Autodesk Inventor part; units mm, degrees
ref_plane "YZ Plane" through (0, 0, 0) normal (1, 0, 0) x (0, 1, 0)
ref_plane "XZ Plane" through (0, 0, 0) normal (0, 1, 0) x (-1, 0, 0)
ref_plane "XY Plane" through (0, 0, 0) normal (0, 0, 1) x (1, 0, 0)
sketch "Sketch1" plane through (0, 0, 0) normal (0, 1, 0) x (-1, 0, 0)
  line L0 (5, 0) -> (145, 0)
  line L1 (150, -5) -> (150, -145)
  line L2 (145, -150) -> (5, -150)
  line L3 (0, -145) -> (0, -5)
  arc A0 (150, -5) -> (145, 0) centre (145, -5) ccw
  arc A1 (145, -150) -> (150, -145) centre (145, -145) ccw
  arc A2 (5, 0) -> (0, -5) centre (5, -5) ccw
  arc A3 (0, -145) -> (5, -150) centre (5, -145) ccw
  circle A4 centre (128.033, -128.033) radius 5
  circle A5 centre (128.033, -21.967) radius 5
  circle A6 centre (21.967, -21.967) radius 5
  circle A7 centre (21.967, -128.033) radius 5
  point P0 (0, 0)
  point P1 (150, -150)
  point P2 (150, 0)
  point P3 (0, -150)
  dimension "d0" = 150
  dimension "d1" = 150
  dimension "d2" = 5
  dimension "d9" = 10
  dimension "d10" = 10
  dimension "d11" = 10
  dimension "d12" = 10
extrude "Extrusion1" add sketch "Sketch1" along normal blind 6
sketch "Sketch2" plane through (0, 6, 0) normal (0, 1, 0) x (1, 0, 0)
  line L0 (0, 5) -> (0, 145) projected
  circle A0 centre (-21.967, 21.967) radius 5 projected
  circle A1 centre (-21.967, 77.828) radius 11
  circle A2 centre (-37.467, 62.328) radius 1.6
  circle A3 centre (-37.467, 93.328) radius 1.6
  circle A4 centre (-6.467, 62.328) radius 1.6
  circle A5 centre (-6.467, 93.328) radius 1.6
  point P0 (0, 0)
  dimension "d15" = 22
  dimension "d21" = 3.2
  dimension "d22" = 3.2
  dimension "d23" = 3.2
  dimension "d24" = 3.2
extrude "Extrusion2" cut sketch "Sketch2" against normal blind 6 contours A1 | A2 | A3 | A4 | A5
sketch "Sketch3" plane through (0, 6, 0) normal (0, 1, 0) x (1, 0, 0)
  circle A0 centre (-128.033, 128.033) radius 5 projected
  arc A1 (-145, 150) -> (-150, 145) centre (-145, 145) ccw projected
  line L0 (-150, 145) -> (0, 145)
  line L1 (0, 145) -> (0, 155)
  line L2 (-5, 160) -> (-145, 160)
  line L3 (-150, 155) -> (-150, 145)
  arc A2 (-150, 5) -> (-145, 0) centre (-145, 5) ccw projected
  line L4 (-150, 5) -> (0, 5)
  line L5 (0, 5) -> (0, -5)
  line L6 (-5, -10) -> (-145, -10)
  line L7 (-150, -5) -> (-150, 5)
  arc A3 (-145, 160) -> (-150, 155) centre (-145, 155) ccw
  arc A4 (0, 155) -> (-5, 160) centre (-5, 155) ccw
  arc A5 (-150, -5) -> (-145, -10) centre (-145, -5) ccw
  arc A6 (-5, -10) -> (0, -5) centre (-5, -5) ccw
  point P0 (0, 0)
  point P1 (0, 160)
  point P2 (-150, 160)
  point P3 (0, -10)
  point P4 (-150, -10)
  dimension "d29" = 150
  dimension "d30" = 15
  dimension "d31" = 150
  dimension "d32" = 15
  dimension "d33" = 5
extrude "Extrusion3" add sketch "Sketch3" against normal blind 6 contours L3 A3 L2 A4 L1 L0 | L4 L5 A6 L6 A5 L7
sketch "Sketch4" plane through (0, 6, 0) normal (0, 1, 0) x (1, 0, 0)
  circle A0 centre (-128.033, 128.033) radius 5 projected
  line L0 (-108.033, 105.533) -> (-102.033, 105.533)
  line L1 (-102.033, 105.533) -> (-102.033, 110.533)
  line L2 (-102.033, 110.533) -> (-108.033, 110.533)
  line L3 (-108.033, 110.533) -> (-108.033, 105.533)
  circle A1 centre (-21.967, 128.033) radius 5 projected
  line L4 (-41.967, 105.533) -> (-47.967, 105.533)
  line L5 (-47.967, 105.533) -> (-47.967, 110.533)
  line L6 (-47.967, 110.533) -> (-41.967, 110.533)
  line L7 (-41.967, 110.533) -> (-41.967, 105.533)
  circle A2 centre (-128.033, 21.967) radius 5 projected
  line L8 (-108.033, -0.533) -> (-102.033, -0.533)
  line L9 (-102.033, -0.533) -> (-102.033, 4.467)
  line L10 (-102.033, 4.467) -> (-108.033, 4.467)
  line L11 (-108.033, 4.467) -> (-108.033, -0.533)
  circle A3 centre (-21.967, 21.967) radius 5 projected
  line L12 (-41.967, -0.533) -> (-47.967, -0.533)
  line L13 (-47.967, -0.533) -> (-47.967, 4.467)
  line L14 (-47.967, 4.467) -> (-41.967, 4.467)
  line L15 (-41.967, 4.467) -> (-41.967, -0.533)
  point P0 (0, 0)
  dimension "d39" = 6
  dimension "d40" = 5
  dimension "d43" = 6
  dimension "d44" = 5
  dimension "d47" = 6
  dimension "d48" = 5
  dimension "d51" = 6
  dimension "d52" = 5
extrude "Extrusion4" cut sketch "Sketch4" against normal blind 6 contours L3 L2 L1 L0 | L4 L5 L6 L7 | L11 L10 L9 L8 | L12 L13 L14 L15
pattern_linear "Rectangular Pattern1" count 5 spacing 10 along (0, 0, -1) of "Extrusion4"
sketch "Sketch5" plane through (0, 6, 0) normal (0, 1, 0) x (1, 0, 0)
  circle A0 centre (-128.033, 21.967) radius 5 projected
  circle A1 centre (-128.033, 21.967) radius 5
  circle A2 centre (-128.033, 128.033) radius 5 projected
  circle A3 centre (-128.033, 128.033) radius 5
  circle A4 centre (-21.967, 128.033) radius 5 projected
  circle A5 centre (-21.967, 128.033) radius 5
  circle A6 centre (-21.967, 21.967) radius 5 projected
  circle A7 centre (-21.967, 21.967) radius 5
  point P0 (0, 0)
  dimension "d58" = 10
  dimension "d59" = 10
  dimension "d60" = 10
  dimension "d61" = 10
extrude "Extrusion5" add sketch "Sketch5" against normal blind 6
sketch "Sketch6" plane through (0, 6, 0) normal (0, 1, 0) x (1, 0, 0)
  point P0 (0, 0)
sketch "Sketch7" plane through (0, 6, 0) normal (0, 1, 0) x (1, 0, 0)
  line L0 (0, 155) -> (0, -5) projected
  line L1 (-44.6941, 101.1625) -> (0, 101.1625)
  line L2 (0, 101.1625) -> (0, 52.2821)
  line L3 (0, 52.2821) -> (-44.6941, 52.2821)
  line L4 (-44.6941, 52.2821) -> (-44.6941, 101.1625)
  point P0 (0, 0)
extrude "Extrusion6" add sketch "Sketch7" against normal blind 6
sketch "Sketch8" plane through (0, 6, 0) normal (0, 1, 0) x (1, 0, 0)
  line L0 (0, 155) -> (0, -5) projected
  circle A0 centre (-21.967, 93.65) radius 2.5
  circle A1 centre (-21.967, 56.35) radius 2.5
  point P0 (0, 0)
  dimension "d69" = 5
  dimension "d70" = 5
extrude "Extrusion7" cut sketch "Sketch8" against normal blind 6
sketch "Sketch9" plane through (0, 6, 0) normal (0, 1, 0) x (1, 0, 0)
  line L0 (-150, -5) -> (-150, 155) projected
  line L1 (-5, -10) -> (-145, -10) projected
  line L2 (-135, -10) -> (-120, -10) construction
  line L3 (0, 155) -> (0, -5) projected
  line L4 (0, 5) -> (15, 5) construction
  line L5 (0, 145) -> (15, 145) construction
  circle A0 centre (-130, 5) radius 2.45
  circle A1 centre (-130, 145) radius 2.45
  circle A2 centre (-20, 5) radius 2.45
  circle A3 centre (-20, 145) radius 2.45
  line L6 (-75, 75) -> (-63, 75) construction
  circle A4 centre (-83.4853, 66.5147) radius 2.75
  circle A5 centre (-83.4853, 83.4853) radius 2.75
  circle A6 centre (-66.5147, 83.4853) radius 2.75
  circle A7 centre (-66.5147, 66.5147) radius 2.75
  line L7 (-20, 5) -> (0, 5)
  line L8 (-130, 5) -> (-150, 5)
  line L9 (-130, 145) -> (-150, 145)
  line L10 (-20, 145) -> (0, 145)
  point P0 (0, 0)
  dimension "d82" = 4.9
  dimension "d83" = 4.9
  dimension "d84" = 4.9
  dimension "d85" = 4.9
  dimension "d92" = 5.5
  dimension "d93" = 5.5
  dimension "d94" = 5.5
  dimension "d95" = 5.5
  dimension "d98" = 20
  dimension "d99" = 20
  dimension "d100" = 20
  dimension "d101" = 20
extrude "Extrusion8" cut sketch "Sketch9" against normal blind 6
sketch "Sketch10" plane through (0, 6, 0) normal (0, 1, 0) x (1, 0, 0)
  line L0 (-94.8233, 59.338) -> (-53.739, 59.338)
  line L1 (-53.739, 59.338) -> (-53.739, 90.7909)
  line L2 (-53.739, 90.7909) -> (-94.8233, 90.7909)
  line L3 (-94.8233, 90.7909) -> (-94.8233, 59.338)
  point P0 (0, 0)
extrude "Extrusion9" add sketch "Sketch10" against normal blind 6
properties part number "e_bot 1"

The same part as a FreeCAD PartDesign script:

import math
import FreeCAD as App
import Part
import Sketcher

V = App.Vector


def add_polygon(sketch, points):
    """Adds a closed chain of lines whose ends are joined by coincident constraints."""
    first, n = sketch.GeometryCount, len(points)
    for a, b in zip(points, points[1:] + points[:1]):
        sketch.addGeometry(Part.LineSegment(App.Vector(*a, 0), App.Vector(*b, 0)), False)
    for i in range(n):
        sketch.addConstraint(Sketcher.Constraint("Coincident", first + i, 2, first + (i + 1) % n, 1))

doc = App.newDocument("Part")
body = doc.addObject("PartDesign::Body", "Body")

# Sketch on XZ plane
sketch1 = body.newObject("Sketcher::SketchObject", "Sketch")
sketch1.AttachmentSupport = (doc.getObject("XZ_Plane"), [""])
sketch1.MapMode = "FlatFace"
sketch1.addGeometry([
    Part.LineSegment(V(-145, 0, 0), V(-5, 0, 0)),  # 0
    Part.ArcOfCircle(Part.Circle(V(-5, -5, 0), V(0, 0, 1), 5), math.radians(0), math.radians(90)),  # 1
    Part.LineSegment(V(0, -5, 0), V(0, -145, 0)),  # 2
    Part.ArcOfCircle(Part.Circle(V(-5, -145, 0), V(0, 0, 1), 5), math.radians(-90), math.radians(0)),  # 3
    Part.LineSegment(V(-5, -150, 0), V(-145, -150, 0)),  # 4
    Part.ArcOfCircle(Part.Circle(V(-145, -145, 0), V(0, 0, 1), 5), math.radians(180), math.radians(270)),  # 5
    Part.LineSegment(V(-150, -145, 0), V(-150, -5, 0)),  # 6
    Part.ArcOfCircle(Part.Circle(V(-145, -5, 0), V(0, 0, 1), 5), math.radians(90), math.radians(180)),  # 7
    Part.Circle(V(-22, -128, 0), V(0, 0, 1), 5),  # 8
    Part.Circle(V(-128, -128, 0), V(0, 0, 1), 5),  # 9
    Part.Circle(V(-22, -22, 0), V(0, 0, 1), 5),  # 10
    Part.Circle(V(-128, -22, 0), V(0, 0, 1), 5),  # 11
], False)
sketch1.addConstraint([
    Sketcher.Constraint("Tangent", 0, 2, 1, 2),
    Sketcher.Constraint("Tangent", 1, 1, 2, 1),
    Sketcher.Constraint("Tangent", 2, 2, 3, 2),
    Sketcher.Constraint("Tangent", 3, 1, 4, 1),
    Sketcher.Constraint("Tangent", 4, 2, 5, 2),
    Sketcher.Constraint("Tangent", 5, 1, 6, 1),
    Sketcher.Constraint("Tangent", 6, 2, 7, 2),
    Sketcher.Constraint("Tangent", 7, 1, 0, 1),
    Sketcher.Constraint("Horizontal", 0),
    Sketcher.Constraint("Vertical", 2),
    Sketcher.Constraint("Horizontal", 4),
    Sketcher.Constraint("Vertical", 6),
    Sketcher.Constraint("Equal", 1, 3),
    Sketcher.Constraint("Equal", 3, 5),
    Sketcher.Constraint("Equal", 5, 7),
    Sketcher.Constraint("Equal", 7, 8),
    Sketcher.Constraint("Equal", 8, 9),
    Sketcher.Constraint("Equal", 9, 10),
    Sketcher.Constraint("Equal", 10, 11),
    Sketcher.Constraint("PointOnObject", 0, 2, -1),
    Sketcher.Constraint("PointOnObject", 1, 1, -2),
    Sketcher.Constraint("Horizontal", 8, 3, 9, 3),
    Sketcher.Constraint("Horizontal", 10, 3, 11, 3),
    Sketcher.Constraint("Vertical", 8, 3, 10, 3),
    Sketcher.Constraint("Vertical", 9, 3, 11, 3),
    Sketcher.Constraint("Equal", 4, 2),
    Sketcher.Constraint("Diameter", 8, 10.0),
    Sketcher.Constraint("DistanceY", 3, 1, -1, 1, 150.0),
    Sketcher.Constraint("DistanceX", 8, 3, -1, 1, 21.967),
    Sketcher.Constraint("DistanceY", 8, 3, -1, 1, 128.033),
    Sketcher.Constraint("DistanceX", 9, 3, -1, 1, 128.033),
    Sketcher.Constraint("DistanceY", 10, 3, -1, 1, 21.967),
])
pad1 = body.newObject("PartDesign::Pad", "Pad")
pad1.Profile = sketch1
pad1.Length = 6
pad1.Reversed = True

# Sketch on XZ plane
sketch2 = body.newObject("Sketcher::SketchObject", "Sketch001")
sketch2.AttachmentSupport = (doc.getObject("XZ_Plane"), [""])
sketch2.MapMode = "FlatFace"
sketch2.AttachmentOffset = App.Placement(V(0, 0, -6), App.Rotation())
sketch2.addGeometry([
    Part.Circle(V(-22, -77.8, 0), V(0, 0, 1), 11),  # 0
    Part.Circle(V(-37.5, -62.3, 0), V(0, 0, 1), 1.6),  # 1
    Part.Circle(V(-37.5, -93.3, 0), V(0, 0, 1), 1.6),  # 2
    Part.Circle(V(-6.5, -62.3, 0), V(0, 0, 1), 1.6),  # 3
    Part.Circle(V(-6.5, -93.3, 0), V(0, 0, 1), 1.6),  # 4
], False)
sketch2.addConstraint([
    Sketcher.Constraint("Equal", 1, 2),
    Sketcher.Constraint("Equal", 2, 3),
    Sketcher.Constraint("Equal", 3, 4),
    Sketcher.Constraint("Horizontal", 1, 3, 3, 3),
    Sketcher.Constraint("Horizontal", 2, 3, 4, 3),
    Sketcher.Constraint("Vertical", 1, 3, 2, 3),
    Sketcher.Constraint("Vertical", 3, 3, 4, 3),
    Sketcher.Constraint("Diameter", 0, 22.0),
    Sketcher.Constraint("Diameter", 1, 3.2),
    Sketcher.Constraint("DistanceY", 2, 3, 1, 3, 31.0),
    Sketcher.Constraint("DistanceX", 1, 3, 3, 3, 31.0),
    Sketcher.Constraint("DistanceX", 1, 3, 0, 3, 15.5),
    Sketcher.Constraint("DistanceY", 0, 3, 1, 3, 15.5),
    Sketcher.Constraint("DistanceX", 0, 3, -1, 1, 21.967),
    Sketcher.Constraint("DistanceY", 0, 3, -1, 1, 77.828),
])
pocket1 = body.newObject("PartDesign::Pocket", "Pocket")
pocket1.Profile = sketch2
pocket1.Length = 6
pocket1.Reversed = True

# Sketch on XZ plane
sketch3 = body.newObject("Sketcher::SketchObject", "Sketch002")
sketch3.AttachmentSupport = (doc.getObject("XZ_Plane"), [""])
sketch3.MapMode = "FlatFace"
sketch3.AttachmentOffset = App.Placement(V(0, 0, -6), App.Rotation())
sketch3.addGeometry([
    Part.LineSegment(V(-150, -155, 0), V(-150, -145, 0)),  # 0
    Part.LineSegment(V(-150, -145, 0), V(0, -145, 0)),  # 1
    Part.LineSegment(V(0, -145, 0), V(0, -155, 0)),  # 2
    Part.ArcOfCircle(Part.Circle(V(-5, -155, 0), V(0, 0, 1), 5), math.radians(-90), math.radians(0)),  # 3
    Part.LineSegment(V(-5, -160, 0), V(-145, -160, 0)),  # 4
    Part.ArcOfCircle(Part.Circle(V(-145, -155, 0), V(0, 0, 1), 5), math.radians(180), math.radians(270)),  # 5
    Part.LineSegment(V(0, -5, 0), V(-150, -5, 0)),  # 6
    Part.LineSegment(V(-150, -5, 0), V(-150, 5, 0)),  # 7
    Part.ArcOfCircle(Part.Circle(V(-145, 5, 0), V(0, 0, 1), 5), math.radians(90), math.radians(180)),  # 8
    Part.LineSegment(V(-145, 10, 0), V(-5, 10, 0)),  # 9
    Part.ArcOfCircle(Part.Circle(V(-5, 5, 0), V(0, 0, 1), 5), math.radians(0), math.radians(90)),  # 10
    Part.LineSegment(V(0, 5, 0), V(0, -5, 0)),  # 11
], False)
sketch3.addConstraint([
    Sketcher.Constraint("Coincident", 0, 2, 1, 1),
    Sketcher.Constraint("Coincident", 1, 2, 2, 1),
    Sketcher.Constraint("Tangent", 2, 2, 3, 2),
    Sketcher.Constraint("Tangent", 3, 1, 4, 1),
    Sketcher.Constraint("Tangent", 4, 2, 5, 2),
    Sketcher.Constraint("Tangent", 5, 1, 0, 1),
    Sketcher.Constraint("Coincident", 6, 2, 7, 1),
    Sketcher.Constraint("Tangent", 7, 2, 8, 2),
    Sketcher.Constraint("Tangent", 8, 1, 9, 1),
    Sketcher.Constraint("Tangent", 9, 2, 10, 2),
    Sketcher.Constraint("Tangent", 10, 1, 11, 1),
    Sketcher.Constraint("Coincident", 11, 2, 6, 1),
    Sketcher.Constraint("Vertical", 0),
    Sketcher.Constraint("Horizontal", 1),
    Sketcher.Constraint("Vertical", 2),
    Sketcher.Constraint("Horizontal", 4),
    Sketcher.Constraint("Horizontal", 6),
    Sketcher.Constraint("Vertical", 7),
    Sketcher.Constraint("Horizontal", 9),
    Sketcher.Constraint("Vertical", 11),
    Sketcher.Constraint("Equal", 3, 5),
    Sketcher.Constraint("Equal", 5, 8),
    Sketcher.Constraint("Equal", 8, 10),
    Sketcher.Constraint("Symmetric", 10, 1, 11, 2, -1, 1),
    Sketcher.Constraint("PointOnObject", 1, 2, -2),
    Sketcher.Constraint("Vertical", 5, 3, 8, 3),
    Sketcher.Constraint("Equal", 2, 7),
    Sketcher.Constraint("Radius", 3, 5.0),
    Sketcher.Constraint("DistanceX", 1, 1, 1, 2, 150.0),
    Sketcher.Constraint("DistanceY", -1, 1, 8, 3, 5.0),
    Sketcher.Constraint("DistanceY", 0, 2, 8, 3, 150.0),
])
pad2 = body.newObject("PartDesign::Pad", "Pad001")
pad2.Profile = sketch3
pad2.Length = 6

# Sketch on XZ plane
sketch4 = body.newObject("Sketcher::SketchObject", "Sketch003")
sketch4.AttachmentSupport = (doc.getObject("XZ_Plane"), [""])
sketch4.MapMode = "FlatFace"
sketch4.AttachmentOffset = App.Placement(V(0, 0, -6), App.Rotation())
add_polygon(sketch4, [(-108, -111), (-108, -106), (-102, -106), (-102, -111)])  # lines 0-3
add_polygon(sketch4, [(-48, -106), (-42, -106), (-42, -111), (-48, -111)])  # lines 4-7
add_polygon(sketch4, [(-108, -4), (-108, 1), (-102, 1), (-102, -4)])  # lines 8-11
add_polygon(sketch4, [(-48, 1), (-42, 1), (-42, -4), (-48, -4)])  # lines 12-15
sketch4.addConstraint([
    Sketcher.Constraint("Vertical", 0),
    Sketcher.Constraint("Horizontal", 1),
    Sketcher.Constraint("Vertical", 2),
    Sketcher.Constraint("Horizontal", 3),
    Sketcher.Constraint("Horizontal", 4),
    Sketcher.Constraint("Vertical", 5),
    Sketcher.Constraint("Horizontal", 6),
    Sketcher.Constraint("Vertical", 7),
    Sketcher.Constraint("Vertical", 8),
    Sketcher.Constraint("Horizontal", 9),
    Sketcher.Constraint("Vertical", 10),
    Sketcher.Constraint("Horizontal", 11),
    Sketcher.Constraint("Horizontal", 12),
    Sketcher.Constraint("Vertical", 13),
    Sketcher.Constraint("Horizontal", 14),
    Sketcher.Constraint("Vertical", 15),
    Sketcher.Constraint("Horizontal", 1, 2, 4, 2),
    Sketcher.Constraint("Horizontal", 3, 2, 5, 2),
    Sketcher.Constraint("Horizontal", 9, 2, 12, 2),
    Sketcher.Constraint("Horizontal", 11, 2, 13, 2),
    Sketcher.Constraint("Vertical", 3, 2, 8, 2),
    Sketcher.Constraint("Vertical", 2, 2, 9, 2),
    Sketcher.Constraint("Vertical", 5, 2, 12, 2),
    Sketcher.Constraint("Vertical", 7, 2, 14, 2),
    Sketcher.Constraint("Equal", 3, 4),
    Sketcher.Constraint("Equal", 7, 8),
    Sketcher.Constraint("DistanceX", 1, 1, 1, 2, 6.0),
    Sketcher.Constraint("DistanceY", 0, 1, 0, 2, 5.0),
    Sketcher.Constraint("DistanceX", 0, 2, -1, 1, 108.033),
    Sketcher.Constraint("DistanceY", 0, 2, -1, 1, 105.533),
    Sketcher.Constraint("DistanceX", 4, 2, -1, 1, 41.967),
    Sketcher.Constraint("DistanceY", -1, 1, 8, 2, 0.533),
])
pocket2 = body.newObject("PartDesign::Pocket", "Pocket001")
pocket2.Profile = sketch4
pocket2.Length = 6
pocket2.Reversed = True
doc.recompute()

linearpattern = body.newObject("PartDesign::LinearPattern", "LinearPattern")
linearpattern.Originals = [pocket2]
linearpattern.Direction = (doc.getObject("Z_Axis"), [""])
linearpattern.Mode = "offset"
linearpattern.Offset = 10
linearpattern.Occurrences = 5
linearpattern.Reversed = True
body.Tip = linearpattern

# Sketch on XZ plane
sketch5 = body.newObject("Sketcher::SketchObject", "Sketch004")
sketch5.AttachmentSupport = (doc.getObject("XZ_Plane"), [""])
sketch5.MapMode = "FlatFace"
sketch5.AttachmentOffset = App.Placement(V(0, 0, -6), App.Rotation())
sketch5.addGeometry([
    Part.Circle(V(-128, -22, 0), V(0, 0, 1), 5),
    Part.Circle(V(-128, -128, 0), V(0, 0, 1), 5),
    Part.Circle(V(-22, -128, 0), V(0, 0, 1), 5),
    Part.Circle(V(-22, -22, 0), V(0, 0, 1), 5),
], False)
sketch5.addConstraint([
    Sketcher.Constraint("Equal", 0, 1),
    Sketcher.Constraint("Equal", 1, 2),
    Sketcher.Constraint("Equal", 2, 3),
    Sketcher.Constraint("Horizontal", 1, 3, 2, 3),
    Sketcher.Constraint("Horizontal", 0, 3, 3, 3),
    Sketcher.Constraint("Vertical", 0, 3, 1, 3),
    Sketcher.Constraint("Vertical", 2, 3, 3, 3),
    Sketcher.Constraint("Diameter", 0, 10.0),
    Sketcher.Constraint("DistanceX", 0, 3, -1, 1, 128.033),
    Sketcher.Constraint("DistanceY", 0, 3, -1, 1, 21.967),
    Sketcher.Constraint("DistanceY", 1, 3, -1, 1, 128.033),
    Sketcher.Constraint("DistanceX", 2, 3, -1, 1, 21.967),
])
pad3 = body.newObject("PartDesign::Pad", "Pad002")
pad3.Profile = sketch5
pad3.Length = 6

# Sketch on XZ plane
sketch6 = body.newObject("Sketcher::SketchObject", "Sketch005")
sketch6.AttachmentSupport = (doc.getObject("XZ_Plane"), [""])
sketch6.MapMode = "FlatFace"
sketch6.AttachmentOffset = App.Placement(V(0, 0, -6), App.Rotation())
add_polygon(sketch6, [(0, -52), (0, -101), (-45, -101), (-45, -52)])  # lines 0-3
sketch6.addConstraint([
    Sketcher.Constraint("Vertical", 0),
    Sketcher.Constraint("Horizontal", 1),
    Sketcher.Constraint("Vertical", 2),
    Sketcher.Constraint("Horizontal", 3),
    Sketcher.Constraint("PointOnObject", 0, 2, -2),
    Sketcher.Constraint("DistanceX", 1, 2, 1, 1, 44.694),
    Sketcher.Constraint("DistanceY", 0, 2, 0, 1, 48.8804),
    Sketcher.Constraint("DistanceY", 2, 2, -1, 1, 52.282),
])
pad4 = body.newObject("PartDesign::Pad", "Pad003")
pad4.Profile = sketch6
pad4.Length = 6

# Sketch on XZ plane
sketch7 = body.newObject("Sketcher::SketchObject", "Sketch006")
sketch7.AttachmentSupport = (doc.getObject("XZ_Plane"), [""])
sketch7.MapMode = "FlatFace"
sketch7.AttachmentOffset = App.Placement(V(0, 0, -6), App.Rotation())
sketch7.addGeometry([
    Part.Circle(V(-22, -93.7, 0), V(0, 0, 1), 2.5),
    Part.Circle(V(-22, -56.4, 0), V(0, 0, 1), 2.5),
], False)
sketch7.addConstraint([
    Sketcher.Constraint("Equal", 0, 1),
    Sketcher.Constraint("Vertical", 0, 3, 1, 3),
    Sketcher.Constraint("Diameter", 0, 5.0),
    Sketcher.Constraint("DistanceY", 0, 3, 1, 3, 37.3),
    Sketcher.Constraint("DistanceY", 0, 3, -1, 1, 93.65),
    Sketcher.Constraint("DistanceX", 0, 3, -1, 1, 21.967),
])
pocket3 = body.newObject("PartDesign::Pocket", "Pocket002")
pocket3.Profile = sketch7
pocket3.Length = 6
pocket3.Reversed = True

# Sketch on XZ plane
sketch8 = body.newObject("Sketcher::SketchObject", "Sketch007")
sketch8.AttachmentSupport = (doc.getObject("XZ_Plane"), [""])
sketch8.MapMode = "FlatFace"
sketch8.AttachmentOffset = App.Placement(V(0, 0, -6), App.Rotation())
sketch8.addGeometry([
    Part.Circle(V(-130, -145, 0), V(0, 0, 1), 2.5),  # 0
    Part.Circle(V(-130, -5, 0), V(0, 0, 1), 2.5),  # 1
    Part.Circle(V(-20, -5, 0), V(0, 0, 1), 2.5),  # 2
    Part.Circle(V(-20, -145, 0), V(0, 0, 1), 2.5),  # 3
    Part.Circle(V(-83.5, -66.5, 0), V(0, 0, 1), 2.8),  # 4
    Part.Circle(V(-83.5, -83.5, 0), V(0, 0, 1), 2.8),  # 5
    Part.Circle(V(-66.5, -83.5, 0), V(0, 0, 1), 2.8),  # 6
    Part.Circle(V(-66.5, -66.5, 0), V(0, 0, 1), 2.8),  # 7
], False)
sketch8.addConstraint([
    Sketcher.Constraint("Equal", 0, 1),
    Sketcher.Constraint("Equal", 1, 2),
    Sketcher.Constraint("Equal", 2, 3),
    Sketcher.Constraint("Equal", 4, 5),
    Sketcher.Constraint("Equal", 5, 6),
    Sketcher.Constraint("Equal", 6, 7),
    Sketcher.Constraint("Horizontal", 1, 3, 2, 3),
    Sketcher.Constraint("Horizontal", 0, 3, 3, 3),
    Sketcher.Constraint("Horizontal", 5, 3, 6, 3),
    Sketcher.Constraint("Horizontal", 4, 3, 7, 3),
    Sketcher.Constraint("Vertical", 0, 3, 1, 3),
    Sketcher.Constraint("Vertical", 2, 3, 3, 3),
    Sketcher.Constraint("Vertical", 4, 3, 5, 3),
    Sketcher.Constraint("Vertical", 6, 3, 7, 3),
    Sketcher.Constraint("Diameter", 0, 4.9),
    Sketcher.Constraint("Diameter", 4, 5.5),
    Sketcher.Constraint("DistanceX", 2, 3, -1, 1, 20.0),
    Sketcher.Constraint("DistanceX", 0, 3, -1, 1, 130.0),
    Sketcher.Constraint("DistanceY", 0, 3, -1, 1, 145.0),
    Sketcher.Constraint("DistanceY", 1, 3, -1, 1, 5.0),
    Sketcher.Constraint("DistanceX", 4, 3, -1, 1, 83.4853),
    Sketcher.Constraint("DistanceY", 4, 3, -1, 1, 66.5147),
    Sketcher.Constraint("DistanceY", 5, 3, -1, 1, 83.4853),
    Sketcher.Constraint("DistanceX", 6, 3, -1, 1, 66.5147),
])
pocket4 = body.newObject("PartDesign::Pocket", "Pocket003")
pocket4.Profile = sketch8
pocket4.Length = 6
pocket4.Reversed = True

# Sketch on XZ plane
sketch9 = body.newObject("Sketcher::SketchObject", "Sketch008")
sketch9.AttachmentSupport = (doc.getObject("XZ_Plane"), [""])
sketch9.MapMode = "FlatFace"
sketch9.AttachmentOffset = App.Placement(V(0, 0, -6), App.Rotation())
add_polygon(sketch9, [(-95, -91), (-95, -59), (-54, -59), (-54, -91)])  # lines 0-3
sketch9.addConstraint([
    Sketcher.Constraint("Vertical", 0),
    Sketcher.Constraint("Horizontal", 1),
    Sketcher.Constraint("Vertical", 2),
    Sketcher.Constraint("Horizontal", 3),
    Sketcher.Constraint("DistanceY", 0, 1, 0, 2, 31.453),
    Sketcher.Constraint("DistanceX", 1, 1, 1, 2, 41.0843),
    Sketcher.Constraint("DistanceY", 0, 2, -1, 1, 59.338),
    Sketcher.Constraint("DistanceX", 1, 2, -1, 1, 53.739),
])
pad5 = body.newObject("PartDesign::Pad", "Pad004")
pad5.Profile = sketch9
pad5.Length = 6

doc.recompute()
